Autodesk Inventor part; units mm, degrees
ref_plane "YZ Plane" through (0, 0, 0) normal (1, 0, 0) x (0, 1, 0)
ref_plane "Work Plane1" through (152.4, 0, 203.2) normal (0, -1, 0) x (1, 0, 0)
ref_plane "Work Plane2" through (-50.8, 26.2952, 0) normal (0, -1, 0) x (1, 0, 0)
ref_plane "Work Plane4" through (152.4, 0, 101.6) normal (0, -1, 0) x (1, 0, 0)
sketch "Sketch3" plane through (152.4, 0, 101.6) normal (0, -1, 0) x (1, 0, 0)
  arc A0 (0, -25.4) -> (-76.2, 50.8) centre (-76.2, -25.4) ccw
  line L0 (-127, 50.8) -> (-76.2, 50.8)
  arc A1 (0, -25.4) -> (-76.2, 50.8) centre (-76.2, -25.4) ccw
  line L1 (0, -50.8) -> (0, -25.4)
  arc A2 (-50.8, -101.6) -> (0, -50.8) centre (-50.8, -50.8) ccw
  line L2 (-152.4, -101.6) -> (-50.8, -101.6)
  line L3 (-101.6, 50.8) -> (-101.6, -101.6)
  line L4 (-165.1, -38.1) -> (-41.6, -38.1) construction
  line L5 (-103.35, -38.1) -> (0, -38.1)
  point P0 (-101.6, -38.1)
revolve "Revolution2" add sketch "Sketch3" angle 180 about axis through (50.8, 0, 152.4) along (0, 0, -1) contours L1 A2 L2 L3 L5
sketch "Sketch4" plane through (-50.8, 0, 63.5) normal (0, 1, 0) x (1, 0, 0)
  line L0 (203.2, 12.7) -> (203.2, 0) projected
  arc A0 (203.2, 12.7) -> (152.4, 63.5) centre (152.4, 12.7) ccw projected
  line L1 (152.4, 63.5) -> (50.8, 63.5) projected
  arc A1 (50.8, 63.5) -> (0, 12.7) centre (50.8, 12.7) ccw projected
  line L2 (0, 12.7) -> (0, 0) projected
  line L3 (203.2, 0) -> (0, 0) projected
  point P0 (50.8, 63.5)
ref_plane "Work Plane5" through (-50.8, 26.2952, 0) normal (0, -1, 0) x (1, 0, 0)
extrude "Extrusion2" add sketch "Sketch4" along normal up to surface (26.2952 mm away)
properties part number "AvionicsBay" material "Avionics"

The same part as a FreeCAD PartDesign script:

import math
import FreeCAD as App
import Part
import Sketcher
from FreeCAD import Vector
Q = App.Units.Quantity

doc = App.newDocument("Part")
body = doc.addObject("PartDesign::Body", "Body")

# Sketch on XZ plane
sketch1 = body.newObject("Sketcher::SketchObject", "Sketch")
sketch1.AttachmentSupport = (doc.getObject("XZ_Plane"), [""])
sketch1.MapMode = "FlatFace"
sketch1.addGeometry(Part.LineSegment(Vector(152.4, 50.8, 0), Vector(152.4, 63.5, 0)), False)
sketch1.addGeometry(Part.LineSegment(Vector(152.4, 63.5, 0), Vector(50.8, 63.5, 0)), False)
sketch1.addGeometry(Part.LineSegment(Vector(50.8, 63.5, 0), Vector(50.8, 0, 0)), False)
sketch1.addGeometry(Part.LineSegment(Vector(50.8, 0, 0), Vector(101.6, 0, 0)), False)
sketch1.addGeometry(Part.ArcOfCircle(Part.Circle(Vector(101.6, 50.8, 0), Vector(0, 0, 1), 50.8), math.radians(-90), math.radians(0)), False)
sketch1.addGeometry(Part.LineSegment(Vector(50.8, 63.5, 0), Vector(50.8, 0, 0)), True)  # axis
sketch1.addConstraint(Sketcher.Constraint("Coincident", 0, 2, 1, 1))
sketch1.addConstraint(Sketcher.Constraint("Coincident", 1, 2, 2, 1))
sketch1.addConstraint(Sketcher.Constraint("Coincident", 2, 2, 3, 1))
sketch1.addConstraint(Sketcher.Constraint("Tangent", 3, 2, 4, 1))
sketch1.addConstraint(Sketcher.Constraint("Tangent", 4, 2, 0, 1))
sketch1.addConstraint(Sketcher.Constraint("Vertical", 0))
sketch1.addConstraint(Sketcher.Constraint("Horizontal", 1))
sketch1.addConstraint(Sketcher.Constraint("Vertical", 2))
sketch1.addConstraint(Sketcher.Constraint("Horizontal", 3))
sketch1.addConstraint(Sketcher.Constraint("Vertical", 5))
sketch1.addConstraint(Sketcher.Constraint("Coincident", 5, 1, 1, 2))
sketch1.addConstraint(Sketcher.Constraint("PointOnObject", 2, 2, -1))
sketch1.addConstraint(Sketcher.Constraint("PointOnObject", 5, 2, -1))
sketch1.addConstraint(Sketcher.Constraint("Radius", 4, Q("2 in")))
sketch1.addConstraint(Sketcher.Constraint("DistanceX", 1, 2, 1, 1, Q("4 in")))
sketch1.addConstraint(Sketcher.Constraint("DistanceY", 0, 1, 0, 2, Q("0.5 in")))
sketch1.addConstraint(Sketcher.Constraint("DistanceX", -1, 1, 4, 3, Q("4 in")))
revolution = body.newObject("PartDesign::Revolution", "Revolution")
revolution.Profile = sketch1
revolution.ReferenceAxis = (sketch1, ["Axis0"])
revolution.Angle = 180

# Sketch on XZ plane
sketch2 = body.newObject("Sketcher::SketchObject", "Sketch001")
sketch2.AttachmentSupport = (doc.getObject("XZ_Plane"), [""])
sketch2.MapMode = "FlatFace"
sketch2.addGeometry(Part.LineSegment(Vector(152.4, 63.5, 0), Vector(152.4, 50.8, 0)), False)
sketch2.addGeometry(Part.ArcOfCircle(Part.Circle(Vector(101.6, 50.8, 0), Vector(0, 0, 1), 50.8), math.radians(-90), math.radians(0)), False)
sketch2.addGeometry(Part.LineSegment(Vector(101.6, 0, 0), Vector(0, 0, 0)), False)
sketch2.addGeometry(Part.ArcOfCircle(Part.Circle(Vector(0, 50.8, 0), Vector(0, 0, 1), 50.8), math.radians(180), math.radians(270)), False)
sketch2.addGeometry(Part.LineSegment(Vector(-50.8, 50.8, 0), Vector(-50.8, 63.5, 0)), False)
sketch2.addGeometry(Part.LineSegment(Vector(-50.8, 63.5, 0), Vector(152.4, 63.5, 0)), False)
sketch2.addConstraint(Sketcher.Constraint("Tangent", 0, 2, 1, 2))
sketch2.addConstraint(Sketcher.Constraint("Tangent", 1, 1, 2, 1))
sketch2.addConstraint(Sketcher.Constraint("Tangent", 2, 2, 3, 2))
sketch2.addConstraint(Sketcher.Constraint("Tangent", 3, 1, 4, 1))
sketch2.addConstraint(Sketcher.Constraint("Coincident", 4, 2, 5, 1))
sketch2.addConstraint(Sketcher.Constraint("Coincident", 5, 2, 0, 1))
sketch2.addConstraint(Sketcher.Constraint("Vertical", 0))
sketch2.addConstraint(Sketcher.Constraint("Horizontal", 2))
sketch2.addConstraint(Sketcher.Constraint("Vertical", 4))
sketch2.addConstraint(Sketcher.Constraint("Horizontal", 5))
sketch2.addConstraint(Sketcher.Constraint("Coincident", 2, 2, -1, 1))
sketch2.addConstraint(Sketcher.Constraint("Equal", 1, 3))
sketch2.addConstraint(Sketcher.Constraint("Radius", 1, Q("2 in")))
sketch2.addConstraint(Sketcher.Constraint("DistanceX", 2, 2, 2, 1, Q("4 in")))
sketch2.addConstraint(Sketcher.Constraint("DistanceY", 0, 2, 0, 1, Q("0.5 in")))
pad1 = body.newObject("PartDesign::Pad", "Pad")
pad1.Profile = sketch2
pad1.Length = 26.2952
pad1.Reversed = True

doc.recompute()
